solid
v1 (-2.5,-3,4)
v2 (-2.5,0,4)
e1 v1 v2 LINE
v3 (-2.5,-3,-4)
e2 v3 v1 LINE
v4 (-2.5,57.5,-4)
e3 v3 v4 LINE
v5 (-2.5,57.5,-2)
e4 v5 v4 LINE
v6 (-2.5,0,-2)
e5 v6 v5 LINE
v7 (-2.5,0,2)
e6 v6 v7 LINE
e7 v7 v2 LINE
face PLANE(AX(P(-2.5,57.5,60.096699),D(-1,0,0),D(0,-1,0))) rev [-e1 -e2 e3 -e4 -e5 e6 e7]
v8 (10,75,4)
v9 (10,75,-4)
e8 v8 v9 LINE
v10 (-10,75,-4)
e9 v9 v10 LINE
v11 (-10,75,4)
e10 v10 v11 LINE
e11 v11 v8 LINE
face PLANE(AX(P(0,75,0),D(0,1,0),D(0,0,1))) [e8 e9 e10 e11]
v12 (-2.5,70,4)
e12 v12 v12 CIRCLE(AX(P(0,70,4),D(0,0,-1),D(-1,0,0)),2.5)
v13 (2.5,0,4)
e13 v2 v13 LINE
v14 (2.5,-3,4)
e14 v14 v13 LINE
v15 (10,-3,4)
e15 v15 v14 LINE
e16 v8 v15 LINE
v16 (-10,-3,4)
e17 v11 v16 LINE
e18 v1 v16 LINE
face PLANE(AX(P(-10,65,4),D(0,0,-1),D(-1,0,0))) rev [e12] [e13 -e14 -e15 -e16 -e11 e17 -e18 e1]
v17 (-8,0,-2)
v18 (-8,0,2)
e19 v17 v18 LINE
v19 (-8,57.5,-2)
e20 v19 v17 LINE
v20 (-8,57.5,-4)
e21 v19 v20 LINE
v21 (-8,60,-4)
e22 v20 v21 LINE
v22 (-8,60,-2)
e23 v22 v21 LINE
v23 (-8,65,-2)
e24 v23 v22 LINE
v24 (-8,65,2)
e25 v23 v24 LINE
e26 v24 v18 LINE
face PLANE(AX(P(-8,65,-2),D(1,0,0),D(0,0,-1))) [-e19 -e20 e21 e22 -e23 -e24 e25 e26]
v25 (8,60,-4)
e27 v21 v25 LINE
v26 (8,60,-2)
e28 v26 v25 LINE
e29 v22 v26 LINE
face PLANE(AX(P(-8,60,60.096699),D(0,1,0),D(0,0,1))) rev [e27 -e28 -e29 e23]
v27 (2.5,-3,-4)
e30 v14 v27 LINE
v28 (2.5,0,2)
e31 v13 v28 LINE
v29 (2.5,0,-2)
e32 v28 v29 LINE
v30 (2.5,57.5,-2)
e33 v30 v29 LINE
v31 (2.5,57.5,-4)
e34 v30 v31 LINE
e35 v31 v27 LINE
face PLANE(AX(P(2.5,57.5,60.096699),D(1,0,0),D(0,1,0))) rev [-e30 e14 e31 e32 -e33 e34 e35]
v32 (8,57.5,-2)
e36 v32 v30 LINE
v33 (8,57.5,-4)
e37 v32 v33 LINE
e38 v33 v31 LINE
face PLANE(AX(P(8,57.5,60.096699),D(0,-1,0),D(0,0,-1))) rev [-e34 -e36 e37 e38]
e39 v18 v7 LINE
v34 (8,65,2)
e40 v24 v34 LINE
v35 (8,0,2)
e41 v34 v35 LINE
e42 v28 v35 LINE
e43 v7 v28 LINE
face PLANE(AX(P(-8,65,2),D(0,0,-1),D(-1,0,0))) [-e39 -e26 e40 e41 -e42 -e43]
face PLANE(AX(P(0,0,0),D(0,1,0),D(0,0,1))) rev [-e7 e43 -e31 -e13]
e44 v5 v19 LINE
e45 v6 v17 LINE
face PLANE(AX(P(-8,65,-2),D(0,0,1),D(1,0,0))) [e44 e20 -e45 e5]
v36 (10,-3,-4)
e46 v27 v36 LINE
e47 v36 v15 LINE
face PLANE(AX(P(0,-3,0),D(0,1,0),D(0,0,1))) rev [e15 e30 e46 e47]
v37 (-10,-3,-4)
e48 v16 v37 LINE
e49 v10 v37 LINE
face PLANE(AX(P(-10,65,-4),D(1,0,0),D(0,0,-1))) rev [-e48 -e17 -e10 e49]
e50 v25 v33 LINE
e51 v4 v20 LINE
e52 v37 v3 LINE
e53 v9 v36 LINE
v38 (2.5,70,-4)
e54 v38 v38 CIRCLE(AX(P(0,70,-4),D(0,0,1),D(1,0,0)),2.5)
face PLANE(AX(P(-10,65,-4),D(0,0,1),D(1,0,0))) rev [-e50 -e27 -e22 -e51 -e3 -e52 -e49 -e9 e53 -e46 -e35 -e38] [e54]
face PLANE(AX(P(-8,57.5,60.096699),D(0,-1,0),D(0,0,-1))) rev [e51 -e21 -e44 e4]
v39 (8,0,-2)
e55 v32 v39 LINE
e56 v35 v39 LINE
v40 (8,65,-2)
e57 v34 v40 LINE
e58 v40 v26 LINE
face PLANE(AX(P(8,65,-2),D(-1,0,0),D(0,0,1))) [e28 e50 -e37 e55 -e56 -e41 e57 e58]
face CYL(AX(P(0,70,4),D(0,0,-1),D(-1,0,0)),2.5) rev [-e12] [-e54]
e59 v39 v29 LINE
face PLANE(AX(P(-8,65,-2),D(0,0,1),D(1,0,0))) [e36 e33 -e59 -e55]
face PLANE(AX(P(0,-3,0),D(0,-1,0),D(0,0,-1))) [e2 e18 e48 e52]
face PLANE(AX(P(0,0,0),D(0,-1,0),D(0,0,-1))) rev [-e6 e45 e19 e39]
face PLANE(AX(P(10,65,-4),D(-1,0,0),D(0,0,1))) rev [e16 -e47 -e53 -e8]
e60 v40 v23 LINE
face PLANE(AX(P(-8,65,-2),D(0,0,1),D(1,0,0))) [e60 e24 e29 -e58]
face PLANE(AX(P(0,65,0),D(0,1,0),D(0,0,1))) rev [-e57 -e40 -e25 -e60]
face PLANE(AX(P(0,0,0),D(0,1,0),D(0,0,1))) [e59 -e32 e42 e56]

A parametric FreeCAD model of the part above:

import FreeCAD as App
import Part
import Sketcher
Q = App.Units.Quantity


def add_polygon(sketch, points):
    """Adds a closed chain of lines whose ends are joined by coincident constraints."""
    first, n = sketch.GeometryCount, len(points)
    for a, b in zip(points, points[1:] + points[:1]):
        sketch.addGeometry(Part.LineSegment(App.Vector(*a, 0), App.Vector(*b, 0)), False)
    for i in range(n):
        sketch.addConstraint(Sketcher.Constraint("Coincident", first + i, 2, first + (i + 1) % n, 1))

doc = App.newDocument("Part")
body = doc.addObject("PartDesign::Body", "Body")

sketch1 = body.newObject("Sketcher::SketchObject", "Sketch")
sketch1.AttachmentSupport = (doc.getObject("XZ_Plane"), [""])
sketch1.MapMode = "FlatFace"
add_polygon(sketch1, [(-10, -4), (-10, 4), (10, 4), (10, -4)])
add_polygon(sketch1, [(8, 2), (-8, 2), (-8, -2), (8, -2)])
sketch1.addConstraint([
    Sketcher.Constraint("Vertical", 0),
    Sketcher.Constraint("Horizontal", 1),
    Sketcher.Constraint("Vertical", 2),
    Sketcher.Constraint("Horizontal", 3),
    Sketcher.Constraint("Horizontal", 4),
    Sketcher.Constraint("Vertical", 5),
    Sketcher.Constraint("Horizontal", 6),
    Sketcher.Constraint("Vertical", 7),
    Sketcher.Constraint("Symmetric", 0, 2, 2, 2, -1, 1),
    Sketcher.Constraint("Symmetric", 4, 2, 6, 2, -1, 1),
    Sketcher.Constraint("DistanceX", 1, 1, 1, 2, Q("20 mm")),
    Sketcher.Constraint("DistanceX", 4, 2, 4, 1, Q("16 mm")),
    Sketcher.Constraint("DistanceY", 0, 1, 0, 2, Q("8 mm")),
    Sketcher.Constraint("DistanceY", 5, 2, 5, 1, Q("4 mm")),
])
pad1 = body.newObject("PartDesign::Pad", "Pad")
pad1.Profile = sketch1
pad1.Length = 65
pad1.Reversed = True

sketch2 = body.newObject("Sketcher::SketchObject", "Sketch001")
sketch2.AttachmentSupport = (doc.getObject("XY_Plane"), [""])
sketch2.MapMode = "FlatFace"
sketch2.AttachmentOffset = App.Placement(App.Vector(0, 0, -4), App.Rotation())
add_polygon(sketch2, [(-8, 60), (8, 60), (8, 57.5), (2.5, 57.5), (2.5, 0), (-2.5, 0), (-2.5, 57.5), (-8, 57.5)])
sketch2.addConstraint([
    Sketcher.Constraint("Horizontal", 0),
    Sketcher.Constraint("Vertical", 1),
    Sketcher.Constraint("Horizontal", 2),
    Sketcher.Constraint("Vertical", 3),
    Sketcher.Constraint("Horizontal", 4),
    Sketcher.Constraint("Vertical", 5),
    Sketcher.Constraint("Horizontal", 6),
    Sketcher.Constraint("Vertical", 7),
    Sketcher.Constraint("Symmetric", 3, 2, 4, 2, -1, 1),
    Sketcher.Constraint("Symmetric", 1, 2, 6, 2, -2),
    Sketcher.Constraint("DistanceX", 0, 1, 0, 2, Q("16 mm")),
    Sketcher.Constraint("DistanceX", 4, 2, 4, 1, Q("5 mm")),
    Sketcher.Constraint("DistanceY", 1, 2, 1, 1, Q("2.5 mm")),
    Sketcher.Constraint("DistanceY", 3, 2, 3, 1, Q("57.5 mm")),
])
pocket1 = body.newObject("PartDesign::Pocket", "Pocket")
pocket1.Profile = sketch2
pocket1.Length = 2
pocket1.Reversed = True

sketch3 = body.newObject("Sketcher::SketchObject", "Sketch002")
sketch3.AttachmentSupport = (doc.getObject("XZ_Plane"), [""])
sketch3.MapMode = "FlatFace"
add_polygon(sketch3, [(-10, 4), (-10, -4), (-2.5, -4), (-2.5, 4)])
add_polygon(sketch3, [(2.5, 4), (2.5, -4), (10, -4), (10, 4)])
sketch3.addConstraint([
    Sketcher.Constraint("Vertical", 0),
    Sketcher.Constraint("Horizontal", 1),
    Sketcher.Constraint("Vertical", 2),
    Sketcher.Constraint("Horizontal", 3),
    Sketcher.Constraint("Vertical", 4),
    Sketcher.Constraint("Horizontal", 5),
    Sketcher.Constraint("Vertical", 6),
    Sketcher.Constraint("Horizontal", 7),
    Sketcher.Constraint("Symmetric", 2, 2, 4, 2, -1, 1),
    Sketcher.Constraint("Symmetric", 0, 2, 6, 2, -1, 1),
    Sketcher.Constraint("Horizontal", 1, 2, 4, 2),
    Sketcher.Constraint("DistanceY", 0, 2, 0, 1, Q("8 mm")),
    Sketcher.Constraint("DistanceX", 1, 1, 1, 2, Q("7.5 mm")),
    Sketcher.Constraint("DistanceX", 0, 2, -1, 1, Q("10 mm")),
])
pad2 = body.newObject("PartDesign::Pad", "Pad001")
pad2.Profile = sketch3
pad2.Length = 3

sketch4 = body.newObject("Sketcher::SketchObject", "Sketch003")
sketch4.AttachmentSupport = (doc.getObject("XZ_Plane"), [""])
sketch4.MapMode = "FlatFace"
sketch4.AttachmentOffset = App.Placement(App.Vector(0, 0, -65), App.Rotation())
add_polygon(sketch4, [(-10, -4), (-10, 4), (10, 4), (10, -4)])
sketch4.addConstraint([
    Sketcher.Constraint("Vertical", 0),
    Sketcher.Constraint("Horizontal", 1),
    Sketcher.Constraint("Vertical", 2),
    Sketcher.Constraint("Horizontal", 3),
    Sketcher.Constraint("Symmetric", 0, 2, 2, 2, -1, 1),
    Sketcher.Constraint("DistanceX", 1, 1, 1, 2, Q("20 mm")),
    Sketcher.Constraint("DistanceY", 0, 1, 0, 2, Q("8 mm")),
])
pad3 = body.newObject("PartDesign::Pad", "Pad002")
pad3.Profile = sketch4
pad3.Length = 10
pad3.Reversed = True

sketch5 = body.newObject("Sketcher::SketchObject", "Sketch004")
sketch5.AttachmentSupport = (doc.getObject("XY_Plane"), [""])
sketch5.MapMode = "FlatFace"
sketch5.AttachmentOffset = App.Placement(App.Vector(0, 0, -4), App.Rotation())
sketch5.addGeometry(Part.Circle(App.Vector(0, 70, 0), App.Vector(0, 0, 1), 2.5), False)
sketch5.addConstraint([
    Sketcher.Constraint("PointOnObject", 0, 3, -2),
    Sketcher.Constraint("Diameter", 0, Q("5 mm")),
    Sketcher.Constraint("DistanceY", -1, 1, 0, 3, Q("70 mm")),
])
pocket2 = body.newObject("PartDesign::Pocket", "Pocket001")
pocket2.Profile = sketch5
pocket2.Type = "ThroughAll"
pocket2.Midplane = True

doc.recompute()
